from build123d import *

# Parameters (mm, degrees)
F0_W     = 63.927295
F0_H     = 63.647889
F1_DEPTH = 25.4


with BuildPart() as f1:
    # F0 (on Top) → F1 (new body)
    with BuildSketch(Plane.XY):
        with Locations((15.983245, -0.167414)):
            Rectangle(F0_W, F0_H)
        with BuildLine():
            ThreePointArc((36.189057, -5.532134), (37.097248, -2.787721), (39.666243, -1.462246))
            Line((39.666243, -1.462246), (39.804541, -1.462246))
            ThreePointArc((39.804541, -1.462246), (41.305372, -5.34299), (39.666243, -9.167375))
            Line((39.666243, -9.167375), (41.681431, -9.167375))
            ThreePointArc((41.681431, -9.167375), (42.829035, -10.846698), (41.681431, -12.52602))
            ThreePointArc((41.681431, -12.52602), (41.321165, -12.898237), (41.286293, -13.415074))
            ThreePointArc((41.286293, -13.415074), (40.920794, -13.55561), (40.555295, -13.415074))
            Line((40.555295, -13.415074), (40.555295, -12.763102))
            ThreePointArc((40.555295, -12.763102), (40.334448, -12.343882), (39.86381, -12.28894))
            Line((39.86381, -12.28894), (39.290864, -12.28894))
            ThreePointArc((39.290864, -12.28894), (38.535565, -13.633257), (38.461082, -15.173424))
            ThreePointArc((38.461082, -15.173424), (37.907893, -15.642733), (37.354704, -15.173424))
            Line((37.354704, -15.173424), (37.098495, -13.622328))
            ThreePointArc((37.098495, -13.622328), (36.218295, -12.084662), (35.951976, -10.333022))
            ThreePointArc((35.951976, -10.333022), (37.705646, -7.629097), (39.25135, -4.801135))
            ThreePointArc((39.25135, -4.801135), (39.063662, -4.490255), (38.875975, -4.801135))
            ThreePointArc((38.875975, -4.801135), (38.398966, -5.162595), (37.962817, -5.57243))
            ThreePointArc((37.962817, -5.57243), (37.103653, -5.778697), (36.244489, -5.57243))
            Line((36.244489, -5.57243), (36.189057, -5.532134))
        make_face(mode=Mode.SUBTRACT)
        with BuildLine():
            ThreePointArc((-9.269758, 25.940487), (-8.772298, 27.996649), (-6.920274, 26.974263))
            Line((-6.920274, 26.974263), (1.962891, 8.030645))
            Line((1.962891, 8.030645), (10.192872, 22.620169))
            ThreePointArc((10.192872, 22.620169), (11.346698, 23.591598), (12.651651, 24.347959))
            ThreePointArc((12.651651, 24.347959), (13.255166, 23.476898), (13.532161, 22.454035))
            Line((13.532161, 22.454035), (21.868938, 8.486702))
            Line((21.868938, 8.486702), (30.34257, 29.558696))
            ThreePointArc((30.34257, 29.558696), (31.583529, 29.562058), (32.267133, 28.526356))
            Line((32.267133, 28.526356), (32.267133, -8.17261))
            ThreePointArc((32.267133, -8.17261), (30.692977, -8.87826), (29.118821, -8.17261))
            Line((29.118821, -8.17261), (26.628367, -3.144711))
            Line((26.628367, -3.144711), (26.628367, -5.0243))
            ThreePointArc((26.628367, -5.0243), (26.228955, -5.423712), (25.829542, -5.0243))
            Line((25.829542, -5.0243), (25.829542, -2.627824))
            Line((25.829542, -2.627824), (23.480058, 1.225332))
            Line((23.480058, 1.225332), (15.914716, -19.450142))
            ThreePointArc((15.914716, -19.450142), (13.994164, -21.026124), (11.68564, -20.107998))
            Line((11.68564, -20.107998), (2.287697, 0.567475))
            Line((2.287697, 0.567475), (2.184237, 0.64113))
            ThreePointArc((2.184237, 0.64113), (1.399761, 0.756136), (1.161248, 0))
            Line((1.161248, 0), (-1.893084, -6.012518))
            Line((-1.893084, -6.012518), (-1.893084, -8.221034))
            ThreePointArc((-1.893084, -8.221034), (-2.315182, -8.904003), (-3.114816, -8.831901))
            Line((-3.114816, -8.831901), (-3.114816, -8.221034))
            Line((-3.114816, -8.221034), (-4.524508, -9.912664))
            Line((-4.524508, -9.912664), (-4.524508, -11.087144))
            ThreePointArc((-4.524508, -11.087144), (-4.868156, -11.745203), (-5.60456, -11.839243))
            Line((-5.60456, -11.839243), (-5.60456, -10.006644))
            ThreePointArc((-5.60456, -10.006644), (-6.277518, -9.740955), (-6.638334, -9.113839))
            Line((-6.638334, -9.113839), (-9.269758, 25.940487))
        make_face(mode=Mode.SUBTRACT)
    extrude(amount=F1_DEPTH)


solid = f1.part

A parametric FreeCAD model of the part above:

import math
import FreeCAD as App
import Part
import Sketcher
from FreeCAD import Vector
Q = App.Units.Quantity

doc = App.newDocument("Part")
body = doc.addObject("PartDesign::Body", "Body")

sketch1 = body.newObject("Sketcher::SketchObject", "Sketch")
sketch1.AttachmentSupport = (doc.getObject("XY_Plane"), [""])
sketch1.MapMode = "FlatFace"
sketch1.addGeometry(Part.LineSegment(Vector(-15.980403, 31.65653, 0), Vector(-15.980403, -31.991359, 0)), False)
sketch1.addGeometry(Part.LineSegment(Vector(-15.980403, -31.991359, 0), Vector(47.946892, -31.991359, 0)), False)
sketch1.addGeometry(Part.LineSegment(Vector(47.946892, -31.991359, 0), Vector(47.946892, 31.65653, 0)), False)
sketch1.addGeometry(Part.LineSegment(Vector(47.946892, 31.65653, 0), Vector(-15.980403, 31.65653, 0)), False)
sketch1.addGeometry(Part.LineSegment(Vector(36.244489, -5.57243, 0), Vector(36.189057, -5.532134, 0)), False)
sketch1.addGeometry(Part.ArcOfCircle(Part.Circle(Vector(40.005819, -5.272713, 0), Vector(0, 0, 1), 3.825568), math.radians(95.092556), math.radians(183.888346)), False)
sketch1.addGeometry(Part.LineSegment(Vector(39.666243, -1.462246, 0), Vector(39.804541, -1.462246, 0)), False)
sketch1.addGeometry(Part.ArcOfCircle(Part.Circle(Vector(35.79349, -5.244058, 0), Vector(0, 0, 1), 5.51277), math.radians(-45.371602), math.radians(43.31504)), False)
sketch1.addGeometry(Part.LineSegment(Vector(39.666243, -9.167375, 0), Vector(41.681431, -9.167375, 0)), False)
sketch1.addGeometry(Part.ArcOfCircle(Part.Circle(Vector(41.026532, -10.846697, 0), Vector(0, 0, 1), 1.802503), math.radians(-68.695309), math.radians(68.695309)), False)
sketch1.addGeometry(Part.ArcOfCircle(Part.Circle(Vector(42.009791, -13.204295, 0), Vector(0, 0, 1), 0.753576), math.radians(115.832103), math.radians(196.242608)), False)
sketch1.addGeometry(Part.ArcOfCircle(Part.Circle(Vector(40.920794, -13.010056, 0), Vector(0, 0, 1), 0.545554), math.radians(-132.06395), math.radians(-47.93605)), False)
sketch1.addGeometry(Part.LineSegment(Vector(40.555295, -13.415074, 0), Vector(40.555295, -12.763102, 0)), False)
sketch1.addGeometry(Part.ArcOfCircle(Part.Circle(Vector(40.046983, -12.763102, 0), Vector(0, 0, 1), 0.508312), math.radians(-0.000036), math.radians(111.121961)), False)
sketch1.addGeometry(Part.LineSegment(Vector(39.86381, -12.28894, 0), Vector(39.290864, -12.28894, 0)), False)
sketch1.addGeometry(Part.ArcOfCircle(Part.Circle(Vector(41.761019, -14.561126, 0), Vector(0, 0, 1), 3.356261), math.radians(137.390425), math.radians(190.511605)), False)
sketch1.addGeometry(Part.ArcOfCircle(Part.Circle(Vector(37.907893, -15.082048, 0), Vector(0, 0, 1), 0.560685), math.radians(-170.620554), math.radians(-9.379446)), False)
sketch1.addGeometry(Part.LineSegment(Vector(37.354704, -15.173424, 0), Vector(37.098495, -13.622328, 0)), False)
sketch1.addGeometry(Part.ArcOfCircle(Part.Circle(Vector(40.777967, -10.495345, 0), Vector(0, 0, 1), 4.82872), math.radians(178.073576), math.radians(220.3594)), False)
sketch1.addGeometry(Part.ArcOfCircle(Part.Circle(Vector(0.866678, 14.342706, 0), Vector(0, 0, 1), 42.893702), math.radians(-35.118981), math.radians(-26.507113)), False)
sketch1.addGeometry(Part.ArcOfCircle(Part.Circle(Vector(39.063662, -4.702351, 0), Vector(0, 0, 1), 0.212096), math.radians(-27.758742), math.radians(207.758742)), False)
sketch1.addGeometry(Part.ArcOfCircle(Part.Circle(Vector(42.049038, -9.484018, 0), Vector(0, 0, 1), 5.656653), math.radians(124.121073), math.radians(136.250857)), False)
sketch1.addGeometry(Part.ArcOfCircle(Part.Circle(Vector(37.103653, -3.886225, 0), Vector(0, 0, 1), 1.892472), math.radians(-116.999997), math.radians(-63.000003)), False)
sketch1.addGeometry(Part.LineSegment(Vector(-6.638334, -9.113839, 0), Vector(-9.269758, 25.940487, 0)), False)
sketch1.addGeometry(Part.ArcOfCircle(Part.Circle(Vector(-8.236418, 26.778742, 0), Vector(0, 0, 1), 1.330588), math.radians(8.44981), math.radians(219.049304)), False)
sketch1.addGeometry(Part.LineSegment(Vector(-6.920274, 26.974263, 0), Vector(1.962891, 8.030645, 0)), False)
sketch1.addGeometry(Part.LineSegment(Vector(1.962891, 8.030645, 0), Vector(10.192872, 22.620169, 0)), False)
sketch1.addGeometry(Part.ArcOfCircle(Part.Circle(Vector(16.322767, 16.510265, 0), Vector(0, 0, 1), 8.654856), math.radians(115.098033), math.radians(135.09358)), False)
sketch1.addGeometry(Part.ArcOfCircle(Part.Circle(Vector(10.427185, 22.162133, 0), Vector(0, 0, 1), 3.118667), math.radians(5.370644), math.radians(44.49802)), False)
sketch1.addGeometry(Part.LineSegment(Vector(13.532161, 22.454035, 0), Vector(21.868938, 8.486702, 0)), False)
sketch1.addGeometry(Part.LineSegment(Vector(21.868938, 8.486702, 0), Vector(30.34257, 29.558696, 0)), False)
sketch1.addGeometry(Part.ArcOfCircle(Part.Circle(Vector(30.966163, 28.411118, 0), Vector(0, 0, 1), 1.306064), math.radians(5.061943), math.radians(118.519636)), False)
sketch1.addGeometry(Part.LineSegment(Vector(32.267133, 28.526356, 0), Vector(32.267133, -8.17261, 0)), False)
sketch1.addGeometry(Part.ArcOfCircle(Part.Circle(Vector(30.692977, -6.76963, 0), Vector(0, 0, 1), 2.10863), math.radians(-138.290712), math.radians(-41.709288)), False)
sketch1.addGeometry(Part.LineSegment(Vector(29.118821, -8.17261, 0), Vector(26.628367, -3.144711, 0)), False)
sketch1.addGeometry(Part.LineSegment(Vector(26.628367, -3.144711, 0), Vector(26.628367, -5.0243, 0)), False)
sketch1.addGeometry(Part.ArcOfCircle(Part.Circle(Vector(26.228955, -5.024299, 0), Vector(0, 0, 1), 0.399413), math.radians(-179.999928), math.radians(-0.000072)), False)
sketch1.addGeometry(Part.LineSegment(Vector(25.829542, -5.0243, 0), Vector(25.829542, -2.627824, 0)), False)
sketch1.addGeometry(Part.LineSegment(Vector(25.829542, -2.627824, 0), Vector(23.480058, 1.225332, 0)), False)
sketch1.addGeometry(Part.LineSegment(Vector(23.480058, 1.225332, 0), Vector(15.914716, -19.450142, 0)), False)
sketch1.addGeometry(Part.ArcOfCircle(Part.Circle(Vector(13.618302, -18.609863, 0), Vector(0, 0, 1), 2.44532), math.radians(-142.218355), math.radians(-20.098023)), False)
sketch1.addGeometry(Part.LineSegment(Vector(11.68564, -20.107998, 0), Vector(2.287697, 0.567475, 0)), False)
sketch1.addGeometry(Part.LineSegment(Vector(2.287697, 0.567475, 0), Vector(2.184237, 0.64113, 0)), False)
sketch1.addGeometry(Part.ArcOfCircle(Part.Circle(Vector(1.724473, 0.238024, 0), Vector(0, 0, 1), 0.611455), math.radians(41.24319), math.radians(202.909387)), False)
sketch1.addGeometry(Part.LineSegment(Vector(1.161248, 0, 0), Vector(-1.893084, -6.012518, 0)), False)
sketch1.addGeometry(Part.LineSegment(Vector(-1.893084, -6.012518, 0), Vector(-1.893084, -8.221034, 0)), False)
sketch1.addGeometry(Part.ArcOfCircle(Part.Circle(Vector(-2.656667, -8.221034, 0), Vector(0, 0, 1), 0.763583), math.radians(-126.869796), math.radians(-0.000027)), False)
sketch1.addGeometry(Part.LineSegment(Vector(-3.114816, -8.831901, 0), Vector(-3.114816, -8.221034, 0)), False)
sketch1.addGeometry(Part.LineSegment(Vector(-3.114816, -8.221034, 0), Vector(-4.524508, -9.912664, 0)), False)
sketch1.addGeometry(Part.LineSegment(Vector(-4.524508, -9.912664, 0), Vector(-4.524508, -11.087144, 0)), False)
sketch1.addGeometry(Part.ArcOfCircle(Part.Circle(Vector(-5.326398, -11.087144, 0), Vector(0, 0, 1), 0.80189), math.radians(-110.296809), math.radians(-0.000001)), False)
sketch1.addGeometry(Part.LineSegment(Vector(-5.60456, -11.839243, 0), Vector(-5.60456, -10.006644, 0)), False)
sketch1.addGeometry(Part.ArcOfCircle(Part.Circle(Vector(-5.56107, -8.911384, 0), Vector(0, 0, 1), 1.096123), math.radians(-169.356301), math.radians(-92.273878)), False)
sketch1.addConstraint(Sketcher.Constraint("Coincident", 0, 2, 1, 1))
sketch1.addConstraint(Sketcher.Constraint("Coincident", 1, 2, 2, 1))
sketch1.addConstraint(Sketcher.Constraint("Coincident", 2, 2, 3, 1))
sketch1.addConstraint(Sketcher.Constraint("Coincident", 3, 2, 0, 1))
sketch1.addConstraint(Sketcher.Constraint("Coincident", 4, 2, 5, 2))
sketch1.addConstraint(Sketcher.Constraint("Coincident", 5, 1, 6, 1))
sketch1.addConstraint(Sketcher.Constraint("Coincident", 6, 2, 7, 2))
sketch1.addConstraint(Sketcher.Constraint("Coincident", 7, 1, 8, 1))
sketch1.addConstraint(Sketcher.Constraint("Coincident", 8, 2, 9, 2))
sketch1.addConstraint(Sketcher.Constraint("Coincident", 9, 1, 10, 1))
sketch1.addConstraint(Sketcher.Constraint("Coincident", 10, 2, 11, 2))
sketch1.addConstraint(Sketcher.Constraint("Coincident", 11, 1, 12, 1))
sketch1.addConstraint(Sketcher.Constraint("Coincident", 12, 2, 13, 1))
sketch1.addConstraint(Sketcher.Constraint("Coincident", 13, 2, 14, 1))
sketch1.addConstraint(Sketcher.Constraint("Coincident", 14, 2, 15, 1))
sketch1.addConstraint(Sketcher.Constraint("Coincident", 15, 2, 16, 2))
sketch1.addConstraint(Sketcher.Constraint("Coincident", 16, 1, 17, 1))
sketch1.addConstraint(Sketcher.Constraint("Coincident", 17, 2, 18, 2))
sketch1.addConstraint(Sketcher.Constraint("Coincident", 18, 1, 19, 1))
sketch1.addConstraint(Sketcher.Constraint("Coincident", 19, 2, 20, 1))
sketch1.addConstraint(Sketcher.Constraint("Coincident", 20, 2, 21, 1))
sketch1.addConstraint(Sketcher.Constraint("Coincident", 21, 2, 22, 2))
sketch1.addConstraint(Sketcher.Constraint("Coincident", 22, 1, 4, 1))
sketch1.addConstraint(Sketcher.Constraint("Coincident", 23, 2, 24, 2))
sketch1.addConstraint(Sketcher.Constraint("Coincident", 24, 1, 25, 1))
sketch1.addConstraint(Sketcher.Constraint("Coincident", 25, 2, 26, 1))
sketch1.addConstraint(Sketcher.Constraint("Coincident", 26, 2, 27, 2))
sketch1.addConstraint(Sketcher.Constraint("Coincident", 27, 1, 28, 2))
sketch1.addConstraint(Sketcher.Constraint("Coincident", 28, 1, 29, 1))
sketch1.addConstraint(Sketcher.Constraint("Coincident", 29, 2, 30, 1))
sketch1.addConstraint(Sketcher.Constraint("Coincident", 30, 2, 31, 2))
sketch1.addConstraint(Sketcher.Constraint("Coincident", 31, 1, 32, 1))
sketch1.addConstraint(Sketcher.Constraint("Coincident", 32, 2, 33, 2))
sketch1.addConstraint(Sketcher.Constraint("Coincident", 33, 1, 34, 1))
sketch1.addConstraint(Sketcher.Constraint("Coincident", 34, 2, 35, 1))
sketch1.addConstraint(Sketcher.Constraint("Coincident", 35, 2, 36, 2))
sketch1.addConstraint(Sketcher.Constraint("Coincident", 36, 1, 37, 1))
sketch1.addConstraint(Sketcher.Constraint("Coincident", 37, 2, 38, 1))
sketch1.addConstraint(Sketcher.Constraint("Coincident", 38, 2, 39, 1))
sketch1.addConstraint(Sketcher.Constraint("Coincident", 39, 2, 40, 2))
sketch1.addConstraint(Sketcher.Constraint("Coincident", 40, 1, 41, 1))
sketch1.addConstraint(Sketcher.Constraint("Coincident", 41, 2, 42, 1))
sketch1.addConstraint(Sketcher.Constraint("Coincident", 42, 2, 43, 1))
sketch1.addConstraint(Sketcher.Constraint("Coincident", 43, 2, 44, 1))
sketch1.addConstraint(Sketcher.Constraint("Coincident", 44, 2, 45, 1))
sketch1.addConstraint(Sketcher.Constraint("Coincident", 45, 2, 46, 2))
sketch1.addConstraint(Sketcher.Constraint("Coincident", 46, 1, 47, 1))
sketch1.addConstraint(Sketcher.Constraint("Coincident", 47, 2, 48, 1))
sketch1.addConstraint(Sketcher.Constraint("Coincident", 48, 2, 49, 1))
sketch1.addConstraint(Sketcher.Constraint("Coincident", 49, 2, 50, 2))
sketch1.addConstraint(Sketcher.Constraint("Coincident", 50, 1, 51, 1))
sketch1.addConstraint(Sketcher.Constraint("Coincident", 51, 2, 52, 2))
sketch1.addConstraint(Sketcher.Constraint("Coincident", 52, 1, 23, 1))
sketch1.addConstraint(Sketcher.Constraint("Vertical", 0))
sketch1.addConstraint(Sketcher.Constraint("Horizontal", 1))
sketch1.addConstraint(Sketcher.Constraint("Vertical", 2))
sketch1.addConstraint(Sketcher.Constraint("Horizontal", 3))
sketch1.addConstraint(Sketcher.Constraint("Horizontal", 6))
sketch1.addConstraint(Sketcher.Constraint("Horizontal", 8))
sketch1.addConstraint(Sketcher.Constraint("Vertical", 12))
sketch1.addConstraint(Sketcher.Constraint("Horizontal", 14))
sketch1.addConstraint(Sketcher.Constraint("Vertical", 32))
sketch1.addConstraint(Sketcher.Constraint("Vertical", 35))
sketch1.addConstraint(Sketcher.Constraint("Vertical", 37))
sketch1.addConstraint(Sketcher.Constraint("Vertical", 45))
sketch1.addConstraint(Sketcher.Constraint("Vertical", 47))
sketch1.addConstraint(Sketcher.Constraint("Vertical", 49))
sketch1.addConstraint(Sketcher.Constraint("Vertical", 51))
sketch1.addConstraint(Sketcher.Constraint("PointOnObject", 43, 2, -1))
sketch1.addConstraint(Sketcher.Constraint("Distance", 42, Q("0.005 in")))
sketch1.addConstraint(Sketcher.Constraint("Radius", 5, Q("3.825568 mm")))
sketch1.addConstraint(Sketcher.Constraint("Radius", 7, Q("5.51277 mm")))
sketch1.addConstraint(Sketcher.Constraint("Radius", 15, Q("3.356261 mm")))
sketch1.addConstraint(Sketcher.Constraint("Radius", 18, Q("4.82872 mm")))
sketch1.addConstraint(Sketcher.Constraint("Radius", 22, Q("1.892472 mm")))
sketch1.addConstraint(Sketcher.Constraint("Radius", 33, Q("2.10863 mm")))
sketch1.addConstraint(Sketcher.Constraint("Radius", 40, Q("2.44532 mm")))
sketch1.addConstraint(Sketcher.Constraint("Radius", 50, Q("0.80189 mm")))
sketch1.addConstraint(Sketcher.Constraint("DistanceY", 51, 1, 51, 2, Q("1.832599 mm")))
sketch1.addConstraint(Sketcher.Constraint("Radius", 9, Q("1.802503 mm")))
sketch1.addConstraint(Sketcher.Constraint("Radius", 10, Q("0.753576 mm")))
sketch1.addConstraint(Sketcher.Constraint("Radius", 11, Q("0.545554 mm")))
sketch1.addConstraint(Sketcher.Constraint("Radius", 13, Q("0.508312 mm")))
sketch1.addConstraint(Sketcher.Constraint("Radius", 16, Q("0.560685 mm")))
sketch1.addConstraint(Sketcher.Constraint("Radius", 19, Q("42.893702 mm")))
sketch1.addConstraint(Sketcher.Constraint("Radius", 20, Q("0.212096 mm")))
sketch1.addConstraint(Sketcher.Constraint("Radius", 21, Q("5.656653 mm")))
sketch1.addConstraint(Sketcher.Constraint("Radius", 24, Q("1.330588 mm")))
sketch1.addConstraint(Sketcher.Constraint("Radius", 27, Q("8.654856 mm")))
sketch1.addConstraint(Sketcher.Constraint("Radius", 28, Q("3.118667 mm")))
sketch1.addConstraint(Sketcher.Constraint("Radius", 31, Q("1.306064 mm")))
sketch1.addConstraint(Sketcher.Constraint("Radius", 36, Q("0.399413 mm")))
sketch1.addConstraint(Sketcher.Constraint("Radius", 43, Q("0.611455 mm")))
sketch1.addConstraint(Sketcher.Constraint("Radius", 46, Q("0.763583 mm")))
sketch1.addConstraint(Sketcher.Constraint("Radius", 52, Q("1.096123 mm")))
sketch1.addConstraint(Sketcher.Constraint("DistanceX", 8, 1, 8, 2, Q("2.015188 mm")))
sketch1.addConstraint(Sketcher.Constraint("DistanceY", 0, 2, 0, 1, Q("63.647889 mm")))
sketch1.addConstraint(Sketcher.Constraint("DistanceY", 35, 2, 35, 1, Q("1.879589 mm")))
sketch1.addConstraint(Sketcher.Constraint("DistanceY", 49, 2, 49, 1, Q("1.17448 mm")))
sketch1.addConstraint(Sketcher.Constraint("DistanceY", 13, 3, -1, 1, Q("12.763102 mm")))
sketch1.addConstraint(Sketcher.Constraint("DistanceY", 36, 3, -1, 1, Q("5.024299 mm")))
sketch1.addConstraint(Sketcher.Constraint("DistanceX", -1, 1, 40, 3, Q("13.618302 mm")))
sketch1.addConstraint(Sketcher.Constraint("DistanceY", -1, 1, 29, 2, Q("8.486702 mm")))
sketch1.addConstraint(Sketcher.Constraint("DistanceY", 35, 2, -1, 1, Q("5.0243 mm")))
sketch1.addConstraint(Sketcher.Constraint("DistanceY", 36, 1, -1, 1, Q("5.0243 mm")))
sketch1.addConstraint(Sketcher.Constraint("DistanceY", 40, 1, -1, 1, Q("20.107998 mm")))
sketch1.addConstraint(Sketcher.Constraint("DistanceY", 46, 1, -1, 1, Q("8.831901 mm")))
sketch1.addConstraint(Sketcher.Constraint("Distance", 4, Q("0.068531 mm")))
sketch1.addConstraint(Sketcher.Constraint("Distance", 29, Q("16.266169 mm")))
sketch1.addConstraint(Sketcher.Constraint("Distance", 30, Q("22.711921 mm")))
sketch1.addConstraint(Sketcher.Constraint("Distance", 38, Q("4.512969 mm")))
sketch1.addConstraint(Sketcher.Constraint("Distance", 39, Q("22.016122 mm")))
sketch1.addConstraint(Sketcher.Constraint("Distance", 48, Q("2.202009 mm")))
sketch1.addConstraint(Sketcher.Constraint("DistanceX", 1, 1, 1, 2, Q("63.927295 mm")))
sketch1.addConstraint(Sketcher.Constraint("DistanceX", 6, 1, 6, 2, Q("0.138298 mm")))
sketch1.addConstraint(Sketcher.Constraint("DistanceX", 14, 2, 14, 1, Q("0.572946 mm")))
sketch1.addConstraint(Sketcher.Constraint("DistanceY", 12, 1, 12, 2, Q("0.651972 mm")))
sketch1.addConstraint(Sketcher.Constraint("DistanceY", 32, 2, 32, 1, Q("36.698966 mm")))
sketch1.addConstraint(Sketcher.Constraint("DistanceY", 37, 1, 37, 2, Q("2.396476 mm")))
sketch1.addConstraint(Sketcher.Constraint("DistanceY", 45, 2, 45, 1, Q("2.208516 mm")))
sketch1.addConstraint(Sketcher.Constraint("DistanceY", 47, 1, 47, 2, Q("0.610867 mm")))
sketch1.addConstraint(Sketcher.Constraint("DistanceX", -1, 1, 5, 3, Q("40.005819 mm")))
sketch1.addConstraint(Sketcher.Constraint("DistanceX", -1, 1, 7, 3, Q("35.79349 mm")))
sketch1.addConstraint(Sketcher.Constraint("DistanceX", -1, 1, 10, 3, Q("42.009791 mm")))
sketch1.addConstraint(Sketcher.Constraint("DistanceX", -1, 1, 15, 3, Q("41.761019 mm")))
sketch1.addConstraint(Sketcher.Constraint("DistanceY", 16, 3, -1, 1, Q("15.082048 mm")))
sketch1.addConstraint(Sketcher.Constraint("DistanceY", 20, 3, -1, 1, Q("4.702351 mm")))
sketch1.addConstraint(Sketcher.Constraint("DistanceY", 21, 3, -1, 1, Q("9.484018 mm")))
sketch1.addConstraint(Sketcher.Constraint("DistanceX", 24, 3, -1, 1, Q("8.236418 mm")))
sketch1.addConstraint(Sketcher.Constraint("DistanceY", -1, 1, 31, 3, Q("28.411118 mm")))
sketch1.addConstraint(Sketcher.Constraint("DistanceY", 33, 3, -1, 1, Q("6.76963 mm")))
sketch1.addConstraint(Sketcher.Constraint("DistanceX", 52, 3, -1, 1, Q("5.56107 mm")))
sketch1.addConstraint(Sketcher.Constraint("DistanceY", 0, 2, -1, 1, Q("31.991359 mm")))
sketch1.addConstraint(Sketcher.Constraint("DistanceX", -1, 1, 6, 2, Q("39.804541 mm")))
sketch1.addConstraint(Sketcher.Constraint("DistanceX", -1, 1, 8, 2, Q("41.681431 mm")))
sketch1.addConstraint(Sketcher.Constraint("DistanceX", -1, 1, 9, 1, Q("41.681431 mm")))
sketch1.addConstraint(Sketcher.Constraint("DistanceY", 9, 1, -1, 1, Q("12.52602 mm")))
sketch1.addConstraint(Sketcher.Constraint("DistanceX", -1, 1, 13, 2, Q("39.86381 mm")))
sketch1.addConstraint(Sketcher.Constraint("DistanceY", 13, 2, -1, 1, Q("12.28894 mm")))
sketch1.addConstraint(Sketcher.Constraint("DistanceX", -1, 1, 15, 2, Q("38.461082 mm")))
sketch1.addConstraint(Sketcher.Constraint("DistanceX", -1, 1, 19, 2, Q("39.25135 mm")))
sketch1.addConstraint(Sketcher.Constraint("DistanceY", 21, 2, -1, 1, Q("5.57243 mm")))
sketch1.addConstraint(Sketcher.Constraint("DistanceX", -1, 1, 22, 1, Q("36.244489 mm")))
sketch1.addConstraint(Sketcher.Constraint("DistanceY", 22, 1, -1, 1, Q("5.57243 mm")))
sketch1.addConstraint(Sketcher.Constraint("DistanceX", -1, 1, 25, 2, Q("1.962891 mm")))
sketch1.addConstraint(Sketcher.Constraint("DistanceY", -1, 1, 26, 2, Q("22.620169 mm")))
sketch1.addConstraint(Sketcher.Constraint("DistanceX", -1, 1, 27, 1, Q("12.651651 mm")))
sketch1.addConstraint(Sketcher.Constraint("DistanceY", -1, 1, 27, 1, Q("24.347959 mm")))
sketch1.addConstraint(Sketcher.Constraint("DistanceX", -1, 1, 28, 1, Q("13.532161 mm")))
sketch1.addConstraint(Sketcher.Constraint("DistanceX", -1, 1, 29, 2, Q("21.868938 mm")))
sketch1.addConstraint(Sketcher.Constraint("DistanceX", -1, 1, 30, 2, Q("30.34257 mm")))
sketch1.addConstraint(Sketcher.Constraint("DistanceY", 32, 2, -1, 1, Q("8.17261 mm")))
sketch1.addConstraint(Sketcher.Constraint("DistanceX", -1, 1, 33, 1, Q("29.118821 mm")))
sketch1.addConstraint(Sketcher.Constraint("DistanceX", -1, 1, 37, 2, Q("25.829542 mm")))
sketch1.addConstraint(Sketcher.Constraint("DistanceY", 39, 2, -1, 1, Q("19.450142 mm")))
sketch1.addConstraint(Sketcher.Constraint("DistanceX", -1, 1, 40, 1, Q("11.68564 mm")))
sketch1.addConstraint(Sketcher.Constraint("DistanceY", -1, 1, 42, 2, Q("0.64113 mm")))
sketch1.addConstraint(Sketcher.Constraint("DistanceX", -1, 1, 43, 2, Q("1.161248 mm")))
sketch1.addConstraint(Sketcher.Constraint("DistanceX", 50, 1, -1, 1, Q("5.60456 mm")))
sketch1.addConstraint(Sketcher.Constraint("DistanceY", 52, 1, -1, 1, Q("9.113839 mm")))
sketch1.addConstraint(Sketcher.Constraint("Distance", 17, Q("1.572114 mm")))
sketch1.addConstraint(Sketcher.Constraint("Distance", 23, Q("35.152954 mm")))
sketch1.addConstraint(Sketcher.Constraint("Distance", 25, Q("20.922985 mm")))
sketch1.addConstraint(Sketcher.Constraint("Distance", 26, Q("16.750725 mm")))
sketch1.addConstraint(Sketcher.Constraint("Distance", 41, Q("22.711154 mm")))
sketch1.addConstraint(Sketcher.Constraint("Distance", 44, Q("6.743835 mm")))
sketch1.addConstraint(Sketcher.Constraint("DistanceY", 5, 3, -1, 1, Q("5.272713 mm")))
sketch1.addConstraint(Sketcher.Constraint("DistanceX", -1, 1, 11, 3, Q("40.920794 mm")))
sketch1.addConstraint(Sketcher.Constraint("DistanceY", 11, 3, -1, 1, Q("13.010056 mm")))
sketch1.addConstraint(Sketcher.Constraint("DistanceX", -1, 1, 18, 3, Q("40.777967 mm")))
sketch1.addConstraint(Sketcher.Constraint("DistanceY", 18, 3, -1, 1, Q("10.495345 mm")))
sketch1.addConstraint(Sketcher.Constraint("DistanceX", -1, 1, 19, 3, Q("0.866678 mm")))
sketch1.addConstraint(Sketcher.Constraint("DistanceY", -1, 1, 19, 3, Q("14.342706 mm")))
sketch1.addConstraint(Sketcher.Constraint("DistanceX", -1, 1, 21, 3, Q("42.049038 mm")))
sketch1.addConstraint(Sketcher.Constraint("DistanceY", -1, 1, 24, 3, Q("26.778742 mm")))
sketch1.addConstraint(Sketcher.Constraint("DistanceX", -1, 1, 27, 3, Q("16.322767 mm")))
sketch1.addConstraint(Sketcher.Constraint("DistanceX", -1, 1, 43, 3, Q("1.724473 mm")))
sketch1.addConstraint(Sketcher.Constraint("DistanceX", 46, 3, -1, 1, Q("2.656667 mm")))
sketch1.addConstraint(Sketcher.Constraint("DistanceY", 46, 3, -1, 1, Q("8.221034 mm")))
sketch1.addConstraint(Sketcher.Constraint("DistanceX", 50, 3, -1, 1, Q("5.326398 mm")))
sketch1.addConstraint(Sketcher.Constraint("DistanceY", 50, 3, -1, 1, Q("11.087144 mm")))
sketch1.addConstraint(Sketcher.Constraint("DistanceX", 0, 2, -1, 1, Q("15.980403 mm")))
sketch1.addConstraint(Sketcher.Constraint("DistanceX", -1, 1, 16, 1, Q("37.354704 mm")))
pad1 = body.newObject("PartDesign::Pad", "Pad")
pad1.Profile = sketch1
pad1.Length = Q("1 in")

doc.recompute()
